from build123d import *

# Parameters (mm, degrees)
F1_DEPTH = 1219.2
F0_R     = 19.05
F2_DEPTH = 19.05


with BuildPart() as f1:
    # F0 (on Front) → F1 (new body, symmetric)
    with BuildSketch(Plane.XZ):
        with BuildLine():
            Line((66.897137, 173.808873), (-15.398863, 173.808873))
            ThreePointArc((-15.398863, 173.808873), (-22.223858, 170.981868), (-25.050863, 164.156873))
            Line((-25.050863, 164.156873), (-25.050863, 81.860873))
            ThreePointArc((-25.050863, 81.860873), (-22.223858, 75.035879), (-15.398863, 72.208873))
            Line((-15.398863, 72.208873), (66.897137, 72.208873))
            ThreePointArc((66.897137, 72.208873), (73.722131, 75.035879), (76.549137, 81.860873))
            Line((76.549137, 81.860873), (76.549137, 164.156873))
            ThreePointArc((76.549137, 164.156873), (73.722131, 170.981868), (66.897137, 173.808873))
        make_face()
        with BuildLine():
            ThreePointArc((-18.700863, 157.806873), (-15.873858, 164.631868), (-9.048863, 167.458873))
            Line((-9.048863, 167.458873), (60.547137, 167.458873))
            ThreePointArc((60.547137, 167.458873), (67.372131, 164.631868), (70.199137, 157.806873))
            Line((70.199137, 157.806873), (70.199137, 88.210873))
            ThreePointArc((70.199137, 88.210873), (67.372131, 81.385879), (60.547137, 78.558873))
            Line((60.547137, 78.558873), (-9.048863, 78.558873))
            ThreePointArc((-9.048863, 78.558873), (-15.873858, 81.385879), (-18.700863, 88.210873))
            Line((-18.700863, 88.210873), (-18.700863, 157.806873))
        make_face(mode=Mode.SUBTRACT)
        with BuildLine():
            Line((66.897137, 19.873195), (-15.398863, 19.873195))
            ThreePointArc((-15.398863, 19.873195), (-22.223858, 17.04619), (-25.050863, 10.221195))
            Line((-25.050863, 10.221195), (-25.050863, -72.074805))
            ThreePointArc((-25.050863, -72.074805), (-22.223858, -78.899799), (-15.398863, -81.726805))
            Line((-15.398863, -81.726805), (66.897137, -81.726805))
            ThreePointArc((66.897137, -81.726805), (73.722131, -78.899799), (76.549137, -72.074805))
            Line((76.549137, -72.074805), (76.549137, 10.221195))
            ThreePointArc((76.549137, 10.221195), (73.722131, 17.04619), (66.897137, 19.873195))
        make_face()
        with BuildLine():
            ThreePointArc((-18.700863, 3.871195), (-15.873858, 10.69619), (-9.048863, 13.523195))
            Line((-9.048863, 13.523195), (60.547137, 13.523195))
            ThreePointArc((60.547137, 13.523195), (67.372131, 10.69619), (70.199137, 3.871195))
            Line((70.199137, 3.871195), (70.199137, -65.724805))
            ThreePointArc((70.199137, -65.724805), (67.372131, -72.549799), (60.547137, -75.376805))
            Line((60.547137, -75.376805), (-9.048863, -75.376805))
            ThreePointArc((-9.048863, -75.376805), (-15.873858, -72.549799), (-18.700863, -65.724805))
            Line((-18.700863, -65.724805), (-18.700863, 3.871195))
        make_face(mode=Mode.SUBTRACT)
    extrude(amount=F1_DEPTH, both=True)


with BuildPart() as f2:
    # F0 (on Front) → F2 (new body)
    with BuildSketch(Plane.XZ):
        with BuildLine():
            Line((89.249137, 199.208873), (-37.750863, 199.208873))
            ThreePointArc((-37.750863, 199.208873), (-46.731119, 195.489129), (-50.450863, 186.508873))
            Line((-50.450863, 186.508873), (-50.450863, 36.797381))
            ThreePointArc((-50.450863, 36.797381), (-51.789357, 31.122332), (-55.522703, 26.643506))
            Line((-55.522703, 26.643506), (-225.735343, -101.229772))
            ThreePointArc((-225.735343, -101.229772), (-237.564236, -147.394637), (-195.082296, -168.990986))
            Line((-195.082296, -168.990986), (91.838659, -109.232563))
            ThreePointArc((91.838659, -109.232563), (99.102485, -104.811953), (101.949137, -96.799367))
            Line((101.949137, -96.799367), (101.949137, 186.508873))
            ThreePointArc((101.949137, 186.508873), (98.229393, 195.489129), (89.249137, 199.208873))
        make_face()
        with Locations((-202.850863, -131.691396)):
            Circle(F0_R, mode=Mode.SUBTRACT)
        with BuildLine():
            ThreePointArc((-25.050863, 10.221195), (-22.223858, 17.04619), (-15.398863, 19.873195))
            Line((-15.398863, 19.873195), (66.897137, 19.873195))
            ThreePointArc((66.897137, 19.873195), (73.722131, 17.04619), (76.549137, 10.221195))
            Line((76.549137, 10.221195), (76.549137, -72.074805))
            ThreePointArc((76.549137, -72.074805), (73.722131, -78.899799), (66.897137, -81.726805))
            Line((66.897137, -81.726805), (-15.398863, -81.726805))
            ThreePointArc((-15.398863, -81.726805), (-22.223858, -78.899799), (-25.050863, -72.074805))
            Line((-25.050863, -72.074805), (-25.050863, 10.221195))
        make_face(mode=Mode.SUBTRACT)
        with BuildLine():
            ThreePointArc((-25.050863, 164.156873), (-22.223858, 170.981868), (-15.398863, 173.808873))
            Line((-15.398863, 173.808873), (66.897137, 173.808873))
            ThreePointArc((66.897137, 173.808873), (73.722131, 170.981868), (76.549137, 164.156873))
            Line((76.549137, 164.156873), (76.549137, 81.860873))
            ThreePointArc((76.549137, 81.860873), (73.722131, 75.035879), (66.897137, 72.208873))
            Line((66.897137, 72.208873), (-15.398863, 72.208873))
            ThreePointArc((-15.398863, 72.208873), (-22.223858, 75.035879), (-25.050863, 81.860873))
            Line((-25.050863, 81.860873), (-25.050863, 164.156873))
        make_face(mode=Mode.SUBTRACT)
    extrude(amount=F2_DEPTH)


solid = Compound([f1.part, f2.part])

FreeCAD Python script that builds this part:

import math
import FreeCAD as App
import Part
import Sketcher
Q = App.Units.Quantity

doc = App.newDocument("Part")
body = doc.addObject("PartDesign::Body", "Body")
body.AllowCompound = True

# Sketch on XZ plane
sketch1 = body.newObject("Sketcher::SketchObject", "Sketch")
sketch1.AttachmentSupport = (doc.getObject("XZ_Plane"), [""])
sketch1.MapMode = "FlatFace"
sketch1.addGeometry([
    Part.LineSegment(App.Vector(67, 174, 0), App.Vector(-15, 174, 0)),  # 0
    Part.ArcOfCircle(Part.Circle(App.Vector(-15, 164, 0), App.Vector(0, 0, 1), 10), math.radians(90), math.radians(180)),  # 1
    Part.LineSegment(App.Vector(-25, 164, 0), App.Vector(-25, 82, 0)),  # 2
    Part.ArcOfCircle(Part.Circle(App.Vector(-15, 82, 0), App.Vector(0, 0, 1), 10), math.radians(-180), math.radians(-90)),  # 3
    Part.LineSegment(App.Vector(-15, 72, 0), App.Vector(67, 72, 0)),  # 4
    Part.ArcOfCircle(Part.Circle(App.Vector(67, 82, 0), App.Vector(0, 0, 1), 10), math.radians(-90), math.radians(0)),  # 5
    Part.LineSegment(App.Vector(77, 82, 0), App.Vector(77, 164, 0)),  # 6
    Part.ArcOfCircle(Part.Circle(App.Vector(67, 164, 0), App.Vector(0, 0, 1), 10), math.radians(0), math.radians(90)),  # 7
    Part.LineSegment(App.Vector(-19, 88, 0), App.Vector(-19, 158, 0)),  # 8
    Part.ArcOfCircle(Part.Circle(App.Vector(-9, 158, 0), App.Vector(0, 0, 1), 10), math.radians(90), math.radians(180)),  # 9
    Part.LineSegment(App.Vector(-9, 167, 0), App.Vector(61, 167, 0)),  # 10
    Part.ArcOfCircle(Part.Circle(App.Vector(61, 158, 0), App.Vector(0, 0, 1), 10), math.radians(0), math.radians(90)),  # 11
    Part.LineSegment(App.Vector(70, 158, 0), App.Vector(70, 88, 0)),  # 12
    Part.ArcOfCircle(Part.Circle(App.Vector(61, 88, 0), App.Vector(0, 0, 1), 10), math.radians(-90), math.radians(0)),  # 13
    Part.LineSegment(App.Vector(61, 79, 0), App.Vector(-9, 79, 0)),  # 14
    Part.ArcOfCircle(Part.Circle(App.Vector(-9, 88, 0), App.Vector(0, 0, 1), 10), math.radians(-180), math.radians(-90)),  # 15
    Part.LineSegment(App.Vector(67, 20, 0), App.Vector(-15, 20, 0)),  # 16
    Part.ArcOfCircle(Part.Circle(App.Vector(-15, 10, 0), App.Vector(0, 0, 1), 10), math.radians(90), math.radians(180)),  # 17
    Part.LineSegment(App.Vector(-25, 10, 0), App.Vector(-25, -72, 0)),  # 18
    Part.ArcOfCircle(Part.Circle(App.Vector(-15, -72, 0), App.Vector(0, 0, 1), 10), math.radians(-180), math.radians(-90)),  # 19
    Part.LineSegment(App.Vector(-15, -82, 0), App.Vector(67, -82, 0)),  # 20
    Part.ArcOfCircle(Part.Circle(App.Vector(67, -72, 0), App.Vector(0, 0, 1), 10), math.radians(-90), math.radians(0)),  # 21
    Part.LineSegment(App.Vector(77, -72, 0), App.Vector(77, 10, 0)),  # 22
    Part.ArcOfCircle(Part.Circle(App.Vector(67, 10, 0), App.Vector(0, 0, 1), 10), math.radians(0), math.radians(90)),  # 23
    Part.LineSegment(App.Vector(-19, -66, 0), App.Vector(-19, 4, 0)),  # 24
    Part.ArcOfCircle(Part.Circle(App.Vector(-9, 4, 0), App.Vector(0, 0, 1), 10), math.radians(90), math.radians(180)),  # 25
    Part.LineSegment(App.Vector(-9, 14, 0), App.Vector(61, 14, 0)),  # 26
    Part.ArcOfCircle(Part.Circle(App.Vector(61, 4, 0), App.Vector(0, 0, 1), 10), math.radians(0), math.radians(90)),  # 27
    Part.LineSegment(App.Vector(70, 4, 0), App.Vector(70, -66, 0)),  # 28
    Part.ArcOfCircle(Part.Circle(App.Vector(61, -66, 0), App.Vector(0, 0, 1), 10), math.radians(-90), math.radians(0)),  # 29
    Part.LineSegment(App.Vector(61, -75, 0), App.Vector(-9, -75, 0)),  # 30
    Part.ArcOfCircle(Part.Circle(App.Vector(-9, -66, 0), App.Vector(0, 0, 1), 10), math.radians(-180), math.radians(-90)),  # 31
], False)
sketch1.addConstraint([
    Sketcher.Constraint("Tangent", 0, 2, 1, 1),
    Sketcher.Constraint("Tangent", 1, 2, 2, 1),
    Sketcher.Constraint("Tangent", 2, 2, 3, 1),
    Sketcher.Constraint("Tangent", 3, 2, 4, 1),
    Sketcher.Constraint("Tangent", 4, 2, 5, 1),
    Sketcher.Constraint("Tangent", 5, 2, 6, 1),
    Sketcher.Constraint("Tangent", 6, 2, 7, 1),
    Sketcher.Constraint("Tangent", 7, 2, 0, 1),
    Sketcher.Constraint("Tangent", 8, 2, 9, 2),
    Sketcher.Constraint("Tangent", 9, 1, 10, 1),
    Sketcher.Constraint("Tangent", 10, 2, 11, 2),
    Sketcher.Constraint("Tangent", 11, 1, 12, 1),
    Sketcher.Constraint("Tangent", 12, 2, 13, 2),
    Sketcher.Constraint("Tangent", 13, 1, 14, 1),
    Sketcher.Constraint("Tangent", 14, 2, 15, 2),
    Sketcher.Constraint("Tangent", 15, 1, 8, 1),
    Sketcher.Constraint("Tangent", 16, 2, 17, 1),
    Sketcher.Constraint("Tangent", 17, 2, 18, 1),
    Sketcher.Constraint("Tangent", 18, 2, 19, 1),
    Sketcher.Constraint("Tangent", 19, 2, 20, 1),
    Sketcher.Constraint("Tangent", 20, 2, 21, 1),
    Sketcher.Constraint("Tangent", 21, 2, 22, 1),
    Sketcher.Constraint("Tangent", 22, 2, 23, 1),
    Sketcher.Constraint("Tangent", 23, 2, 16, 1),
    Sketcher.Constraint("Tangent", 24, 2, 25, 2),
    Sketcher.Constraint("Tangent", 25, 1, 26, 1),
    Sketcher.Constraint("Tangent", 26, 2, 27, 2),
    Sketcher.Constraint("Tangent", 27, 1, 28, 1),
    Sketcher.Constraint("Tangent", 28, 2, 29, 2),
    Sketcher.Constraint("Tangent", 29, 1, 30, 1),
    Sketcher.Constraint("Tangent", 30, 2, 31, 2),
    Sketcher.Constraint("Tangent", 31, 1, 24, 1),
    Sketcher.Constraint("Horizontal", 0),
    Sketcher.Constraint("Vertical", 2),
    Sketcher.Constraint("Horizontal", 4),
    Sketcher.Constraint("Vertical", 6),
    Sketcher.Constraint("Vertical", 8),
    Sketcher.Constraint("Horizontal", 10),
    Sketcher.Constraint("Vertical", 12),
    Sketcher.Constraint("Horizontal", 14),
    Sketcher.Constraint("Horizontal", 16),
    Sketcher.Constraint("Vertical", 18),
    Sketcher.Constraint("Horizontal", 20),
    Sketcher.Constraint("Vertical", 22),
    Sketcher.Constraint("Vertical", 24),
    Sketcher.Constraint("Horizontal", 26),
    Sketcher.Constraint("Vertical", 28),
    Sketcher.Constraint("Horizontal", 30),
    Sketcher.Constraint("Equal", 1, 3),
    Sketcher.Constraint("Equal", 3, 5),
    Sketcher.Constraint("Equal", 5, 7),
    Sketcher.Constraint("Equal", 7, 9),
    Sketcher.Constraint("Equal", 9, 11),
    Sketcher.Constraint("Equal", 11, 13),
    Sketcher.Constraint("Equal", 13, 15),
    Sketcher.Constraint("Equal", 15, 17),
    Sketcher.Constraint("Equal", 17, 19),
    Sketcher.Constraint("Equal", 19, 21),
    Sketcher.Constraint("Equal", 21, 23),
    Sketcher.Constraint("Equal", 23, 25),
    Sketcher.Constraint("Equal", 25, 27),
    Sketcher.Constraint("Equal", 27, 29),
    Sketcher.Constraint("Equal", 29, 31),
    Sketcher.Constraint("Vertical", 3, 3, 17, 3),
    Sketcher.Constraint("Vertical", 7, 3, 21, 3),
    Sketcher.Constraint("Vertical", 15, 3, 25, 3),
    Sketcher.Constraint("Vertical", 13, 3, 27, 3),
    Sketcher.Constraint("Equal", 20, 2),
    Sketcher.Constraint("Equal", 30, 8),
    Sketcher.Constraint("Equal", 6, 18),
    Sketcher.Constraint("Equal", 12, 24),
    Sketcher.Constraint("Radius", 1, Q("0.38 in")),
    Sketcher.Constraint("DistanceX", 0, 2, 0, 1, Q("3.24 in")),
    Sketcher.Constraint("DistanceX", 10, 1, 10, 2, Q("2.74 in")),
    Sketcher.Constraint("DistanceX", 1, 3, 9, 3, Q("0.25 in")),
    Sketcher.Constraint("DistanceY", 9, 3, 1, 3, Q("0.25 in")),
    Sketcher.Constraint("DistanceY", 25, 3, 17, 3, Q("0.25 in")),
    Sketcher.Constraint("DistanceY", 17, 3, 13, 3, Q("77.989679 mm")),
    Sketcher.Constraint("DistanceX", 1, 3, -1, 1, Q("15.398864 mm")),
    Sketcher.Constraint("DistanceY", -1, 1, 1, 3, Q("164.156874 mm")),
])
pad1 = body.newObject("PartDesign::Pad", "Pad")
pad1.Profile = sketch1
pad1.Length = Q("96 in")
pad1.Midplane = True
body2 = doc.addObject("PartDesign::Body", "Body001")

# Sketch on XZ plane
sketch2 = body2.newObject("Sketcher::SketchObject", "Sketch001")
sketch2.AttachmentSupport = (doc.getObject("XZ_Plane001"), [""])
sketch2.MapMode = "FlatFace"
sketch2.addGeometry([
    Part.LineSegment(App.Vector(89, 199, 0), App.Vector(-38, 199, 0)),  # 0
    Part.ArcOfCircle(Part.Circle(App.Vector(-38, 187, 0), App.Vector(0, 0, 1), 13), math.radians(90), math.radians(180)),  # 1
    Part.LineSegment(App.Vector(-50, 187, 0), App.Vector(-50, 37, 0)),  # 2
    Part.ArcOfCircle(Part.Circle(App.Vector(-63, 37, 0), App.Vector(0, 0, 1), 13), math.radians(-53), math.radians(0)),  # 3
    Part.LineSegment(App.Vector(-56, 27, 0), App.Vector(-226, -101, 0)),  # 4
    Part.ArcOfCircle(Part.Circle(App.Vector(-203, -132, 0), App.Vector(0, 0, 1), 38), math.radians(127), math.radians(282)),  # 5
    Part.LineSegment(App.Vector(-195, -169, 0), App.Vector(92, -109, 0)),  # 6
    Part.ArcOfCircle(Part.Circle(App.Vector(89, -97, 0), App.Vector(0, 0, 1), 13), math.radians(-78), math.radians(0)),  # 7
    Part.LineSegment(App.Vector(102, -97, 0), App.Vector(102, 187, 0)),  # 8
    Part.ArcOfCircle(Part.Circle(App.Vector(89, 187, 0), App.Vector(0, 0, 1), 13), math.radians(0), math.radians(90)),  # 9
    Part.Circle(App.Vector(-203, -132, 0), App.Vector(0, 0, 1), 19),  # 10
    Part.LineSegment(App.Vector(-25, -72, 0), App.Vector(-25, 10, 0)),  # 11
    Part.ArcOfCircle(Part.Circle(App.Vector(-15, 10, 0), App.Vector(0, 0, 1), 10), math.radians(90), math.radians(180)),  # 12
    Part.LineSegment(App.Vector(-15, 20, 0), App.Vector(67, 20, 0)),  # 13
    Part.ArcOfCircle(Part.Circle(App.Vector(67, 10, 0), App.Vector(0, 0, 1), 10), math.radians(0), math.radians(90)),  # 14
    Part.LineSegment(App.Vector(77, 10, 0), App.Vector(77, -72, 0)),  # 15
    Part.ArcOfCircle(Part.Circle(App.Vector(67, -72, 0), App.Vector(0, 0, 1), 10), math.radians(-90), math.radians(0)),  # 16
    Part.LineSegment(App.Vector(67, -82, 0), App.Vector(-15, -82, 0)),  # 17
    Part.ArcOfCircle(Part.Circle(App.Vector(-15, -72, 0), App.Vector(0, 0, 1), 10), math.radians(-180), math.radians(-90)),  # 18
    Part.LineSegment(App.Vector(-25, 82, 0), App.Vector(-25, 164, 0)),  # 19
    Part.ArcOfCircle(Part.Circle(App.Vector(-15, 164, 0), App.Vector(0, 0, 1), 10), math.radians(90), math.radians(180)),  # 20
    Part.LineSegment(App.Vector(-15, 174, 0), App.Vector(67, 174, 0)),  # 21
    Part.ArcOfCircle(Part.Circle(App.Vector(67, 164, 0), App.Vector(0, 0, 1), 10), math.radians(0), math.radians(90)),  # 22
    Part.LineSegment(App.Vector(77, 164, 0), App.Vector(77, 82, 0)),  # 23
    Part.ArcOfCircle(Part.Circle(App.Vector(67, 82, 0), App.Vector(0, 0, 1), 10), math.radians(-90), math.radians(0)),  # 24
    Part.LineSegment(App.Vector(67, 72, 0), App.Vector(-15, 72, 0)),  # 25
    Part.ArcOfCircle(Part.Circle(App.Vector(-15, 82, 0), App.Vector(0, 0, 1), 10), math.radians(-180), math.radians(-90)),  # 26
], False)
sketch2.addConstraint([
    Sketcher.Constraint("Tangent", 0, 2, 1, 1),
    Sketcher.Constraint("Tangent", 1, 2, 2, 1),
    Sketcher.Constraint("Tangent", 2, 2, 3, 2),
    Sketcher.Constraint("Tangent", 3, 1, 4, 1),
    Sketcher.Constraint("Tangent", 4, 2, 5, 1),
    Sketcher.Constraint("Tangent", 5, 2, 6, 1),
    Sketcher.Constraint("Tangent", 6, 2, 7, 1),
    Sketcher.Constraint("Tangent", 7, 2, 8, 1),
    Sketcher.Constraint("Tangent", 8, 2, 9, 1),
    Sketcher.Constraint("Tangent", 9, 2, 0, 1),
    Sketcher.Constraint("Tangent", 11, 2, 12, 2),
    Sketcher.Constraint("Tangent", 12, 1, 13, 1),
    Sketcher.Constraint("Tangent", 13, 2, 14, 2),
    Sketcher.Constraint("Tangent", 14, 1, 15, 1),
    Sketcher.Constraint("Tangent", 15, 2, 16, 2),
    Sketcher.Constraint("Tangent", 16, 1, 17, 1),
    Sketcher.Constraint("Tangent", 17, 2, 18, 2),
    Sketcher.Constraint("Tangent", 18, 1, 11, 1),
    Sketcher.Constraint("Tangent", 19, 2, 20, 2),
    Sketcher.Constraint("Tangent", 20, 1, 21, 1),
    Sketcher.Constraint("Tangent", 21, 2, 22, 2),
    Sketcher.Constraint("Tangent", 22, 1, 23, 1),
    Sketcher.Constraint("Tangent", 23, 2, 24, 2),
    Sketcher.Constraint("Tangent", 24, 1, 25, 1),
    Sketcher.Constraint("Tangent", 25, 2, 26, 2),
    Sketcher.Constraint("Tangent", 26, 1, 19, 1),
    Sketcher.Constraint("Horizontal", 0),
    Sketcher.Constraint("Vertical", 2),
    Sketcher.Constraint("Vertical", 8),
    Sketcher.Constraint("Vertical", 11),
    Sketcher.Constraint("Horizontal", 13),
    Sketcher.Constraint("Vertical", 15),
    Sketcher.Constraint("Horizontal", 17),
    Sketcher.Constraint("Vertical", 19),
    Sketcher.Constraint("Horizontal", 21),
    Sketcher.Constraint("Vertical", 23),
    Sketcher.Constraint("Horizontal", 25),
    Sketcher.Constraint("Coincident", 10, 3, 5, 3),
    Sketcher.Constraint("Equal", 1, 3),
    Sketcher.Constraint("Equal", 3, 7),
    Sketcher.Constraint("Equal", 7, 9),
    Sketcher.Constraint("Equal", 12, 14),
    Sketcher.Constraint("Equal", 14, 16),
    Sketcher.Constraint("Equal", 16, 18),
    Sketcher.Constraint("Equal", 18, 20),
    Sketcher.Constraint("Equal", 20, 22),
    Sketcher.Constraint("Equal", 22, 24),
    Sketcher.Constraint("Equal", 24, 26),
    Sketcher.Constraint("Vertical", 18, 3, 20, 3),
    Sketcher.Constraint("Vertical", 16, 3, 22, 3),
    Sketcher.Constraint("Equal", 25, 11),
    Sketcher.Constraint("Equal", 15, 19),
    Sketcher.Constraint("Diameter", 10, Q("1.5 in")),
    Sketcher.Constraint("Radius", 1, Q("0.5 in")),
    Sketcher.Constraint("Radius", 5, Q("1.5 in")),
    Sketcher.Constraint("DistanceX", 0, 2, 0, 1, Q("5 in")),
    Sketcher.Constraint("Radius", 12, Q("0.38 in")),
    Sketcher.Constraint("DistanceX", 2, 2, 11, 2, Q("1 in")),
    Sketcher.Constraint("DistanceX", 15, 2, 7, 2, Q("1 in")),
    Sketcher.Constraint("DistanceY", 20, 1, 0, 2, Q("1 in")),
    Sketcher.Constraint("DistanceX", 5, 3, 3, 3, Q("5.5 in")),
    Sketcher.Constraint("DistanceY", 2, 2, 2, 1, Q("149.711492 mm")),
    Sketcher.Constraint("DistanceY", 8, 1, 8, 2, Q("283.30824 mm")),
    Sketcher.Constraint("DistanceY", -1, 1, 3, 3, Q("36.797381 mm")),
    Sketcher.Constraint("DistanceX", -1, 1, 7, 3, Q("89.249138 mm")),
    Sketcher.Constraint("DistanceY", 4, 2, -1, 1, Q("101.229772 mm")),
    Sketcher.Constraint("DistanceY", 14, 3, 9, 3, Q("176.287678 mm")),
])
pad2 = body2.newObject("PartDesign::Pad", "Pad001")
pad2.Profile = sketch2
pad2.Length = Q("0.75 in")

doc.recompute()
